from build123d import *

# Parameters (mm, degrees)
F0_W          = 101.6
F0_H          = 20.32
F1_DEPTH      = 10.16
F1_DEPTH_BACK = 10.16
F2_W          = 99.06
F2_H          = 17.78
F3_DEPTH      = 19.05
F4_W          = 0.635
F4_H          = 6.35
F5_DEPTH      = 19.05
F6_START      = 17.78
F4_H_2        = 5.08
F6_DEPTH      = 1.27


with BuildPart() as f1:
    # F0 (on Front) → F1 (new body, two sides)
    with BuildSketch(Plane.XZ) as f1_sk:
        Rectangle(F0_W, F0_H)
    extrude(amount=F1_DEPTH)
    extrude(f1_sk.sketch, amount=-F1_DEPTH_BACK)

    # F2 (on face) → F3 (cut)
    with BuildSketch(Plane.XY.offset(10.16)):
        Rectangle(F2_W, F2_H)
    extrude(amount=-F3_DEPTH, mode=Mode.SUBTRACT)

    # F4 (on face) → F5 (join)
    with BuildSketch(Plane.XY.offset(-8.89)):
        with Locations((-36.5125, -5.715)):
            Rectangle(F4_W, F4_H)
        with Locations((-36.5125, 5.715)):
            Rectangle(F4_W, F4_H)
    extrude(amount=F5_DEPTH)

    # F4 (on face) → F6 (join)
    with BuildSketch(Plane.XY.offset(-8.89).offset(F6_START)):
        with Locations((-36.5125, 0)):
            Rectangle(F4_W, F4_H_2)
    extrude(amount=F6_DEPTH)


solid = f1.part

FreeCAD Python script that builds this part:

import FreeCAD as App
import Part
import Sketcher

V = App.Vector
Q = App.Units.Quantity

doc = App.newDocument("Part")
body = doc.addObject("PartDesign::Body", "Body")

sketch1 = body.newObject("Sketcher::SketchObject", "Sketch")
sketch1.AttachmentSupport = (doc.getObject("XZ_Plane"), [""])
sketch1.MapMode = "FlatFace"
sketch1.addGeometry([
    Part.LineSegment(V(-51, 10, 0), V(-51, -10, 0)),
    Part.LineSegment(V(-51, -10, 0), V(51, -10, 0)),
    Part.LineSegment(V(51, -10, 0), V(51, 10, 0)),
    Part.LineSegment(V(51, 10, 0), V(-51, 10, 0)),
], False)
sketch1.addConstraint([
    Sketcher.Constraint("Coincident", 0, 2, 1, 1),
    Sketcher.Constraint("Coincident", 1, 2, 2, 1),
    Sketcher.Constraint("Coincident", 2, 2, 3, 1),
    Sketcher.Constraint("Coincident", 3, 2, 0, 1),
    Sketcher.Constraint("Vertical", 0),
    Sketcher.Constraint("Horizontal", 1),
    Sketcher.Constraint("Vertical", 2),
    Sketcher.Constraint("Horizontal", 3),
    Sketcher.Constraint("Symmetric", 0, 2, 2, 2, -1, 1),
    Sketcher.Constraint("DistanceX", 1, 1, 1, 2, Q("4 in")),
    Sketcher.Constraint("DistanceY", 0, 2, 0, 1, Q("0.8 in")),
])
pad1 = body.newObject("PartDesign::Pad", "Pad")
pad1.Profile = sketch1
pad1.Type = "TwoLengths"
pad1.Length = Q("0.4 in")
pad1.Length2 = Q("0.4 in")

sketch2 = body.newObject("Sketcher::SketchObject", "Sketch001")
sketch2.AttachmentSupport = (doc.getObject("XY_Plane"), [""])
sketch2.MapMode = "FlatFace"
sketch2.AttachmentOffset = App.Placement(V(0, 0, 0.4 * 25.4), App.Rotation())
sketch2.addGeometry([
    Part.LineSegment(V(-50, 9, 0), V(-50, -9, 0)),
    Part.LineSegment(V(-50, -9, 0), V(50, -9, 0)),
    Part.LineSegment(V(50, -9, 0), V(50, 9, 0)),
    Part.LineSegment(V(50, 9, 0), V(-50, 9, 0)),
], False)
sketch2.addConstraint([
    Sketcher.Constraint("Coincident", 0, 2, 1, 1),
    Sketcher.Constraint("Coincident", 1, 2, 2, 1),
    Sketcher.Constraint("Coincident", 2, 2, 3, 1),
    Sketcher.Constraint("Coincident", 3, 2, 0, 1),
    Sketcher.Constraint("Vertical", 0),
    Sketcher.Constraint("Horizontal", 1),
    Sketcher.Constraint("Vertical", 2),
    Sketcher.Constraint("Horizontal", 3),
    Sketcher.Constraint("Symmetric", 0, 2, 2, 2, -1, 1),
    Sketcher.Constraint("DistanceX", 1, 1, 1, 2, Q("3.9 in")),
    Sketcher.Constraint("DistanceY", 0, 2, 0, 1, Q("0.7 in")),
])
pocket1 = body.newObject("PartDesign::Pocket", "Pocket")
pocket1.Profile = sketch2
pocket1.Length = Q("0.75 in")

sketch3 = body.newObject("Sketcher::SketchObject", "Sketch002")
sketch3.AttachmentSupport = (doc.getObject("XY_Plane"), [""])
sketch3.MapMode = "FlatFace"
sketch3.AttachmentOffset = App.Placement(V(0, 0, -0.35 * 25.4), App.Rotation())
sketch3.addGeometry([
    Part.LineSegment(V(-36.8, -2.5, 0), V(-36.8, -8.9, 0)),
    Part.LineSegment(V(-36.8, -8.9, 0), V(-36.2, -8.9, 0)),
    Part.LineSegment(V(-36.2, -8.9, 0), V(-36.2, -2.5, 0)),
    Part.LineSegment(V(-36.2, -2.5, 0), V(-36.8, -2.5, 0)),
    Part.LineSegment(V(-36.8, 8.9, 0), V(-36.8, 2.5, 0)),
    Part.LineSegment(V(-36.8, 2.5, 0), V(-36.2, 2.5, 0)),
    Part.LineSegment(V(-36.2, 2.5, 0), V(-36.2, 8.9, 0)),
    Part.LineSegment(V(-36.2, 8.9, 0), V(-36.8, 8.9, 0)),
], False)
sketch3.addConstraint([
    Sketcher.Constraint("Coincident", 0, 2, 1, 1),
    Sketcher.Constraint("Coincident", 1, 2, 2, 1),
    Sketcher.Constraint("Coincident", 2, 2, 3, 1),
    Sketcher.Constraint("Coincident", 3, 2, 0, 1),
    Sketcher.Constraint("Coincident", 4, 2, 5, 1),
    Sketcher.Constraint("Coincident", 5, 2, 6, 1),
    Sketcher.Constraint("Coincident", 6, 2, 7, 1),
    Sketcher.Constraint("Coincident", 7, 2, 4, 1),
    Sketcher.Constraint("Vertical", 0),
    Sketcher.Constraint("Horizontal", 1),
    Sketcher.Constraint("Vertical", 2),
    Sketcher.Constraint("Horizontal", 3),
    Sketcher.Constraint("Vertical", 4),
    Sketcher.Constraint("Horizontal", 5),
    Sketcher.Constraint("Vertical", 6),
    Sketcher.Constraint("Horizontal", 7),
    Sketcher.Constraint("Symmetric", 3, 2, 4, 2, -1),
    Sketcher.Constraint("Symmetric", 1, 2, 6, 2, -1),
    Sketcher.Constraint("DistanceY", 0, 2, 0, 1, Q("0.25 in")),
    Sketcher.Constraint("DistanceY", 2, 2, -1, 1, Q("0.1 in")),
    Sketcher.Constraint("DistanceX", 1, 1, 1, 2, Q("0.025 in")),
    Sketcher.Constraint("DistanceX", 0, 2, -1, 1, Q("1.45 in")),
])
pad2 = body.newObject("PartDesign::Pad", "Pad001")
pad2.Profile = sketch3
pad2.Length = Q("0.75 in")

sketch4 = body.newObject("Sketcher::SketchObject", "Sketch003")
sketch4.AttachmentSupport = (doc.getObject("XY_Plane"), [""])
sketch4.MapMode = "FlatFace"
sketch4.AttachmentOffset = App.Placement(V(0, 0, 0.35 * 25.4), App.Rotation())
sketch4.addGeometry([
    Part.LineSegment(V(-36.8, 2.5, 0), V(-36.8, -2.5, 0)),
    Part.LineSegment(V(-36.8, -2.5, 0), V(-36.2, -2.5, 0)),
    Part.LineSegment(V(-36.2, -2.5, 0), V(-36.2, 2.5, 0)),
    Part.LineSegment(V(-36.2, 2.5, 0), V(-36.8, 2.5, 0)),
], False)
sketch4.addConstraint([
    Sketcher.Constraint("Coincident", 0, 2, 1, 1),
    Sketcher.Constraint("Coincident", 1, 2, 2, 1),
    Sketcher.Constraint("Coincident", 2, 2, 3, 1),
    Sketcher.Constraint("Coincident", 3, 2, 0, 1),
    Sketcher.Constraint("Vertical", 0),
    Sketcher.Constraint("Horizontal", 1),
    Sketcher.Constraint("Vertical", 2),
    Sketcher.Constraint("Horizontal", 3),
    Sketcher.Constraint("DistanceY", 0, 2, 0, 1, Q("0.2 in")),
    Sketcher.Constraint("DistanceY", 0, 2, -1, 1, Q("0.1 in")),
    Sketcher.Constraint("DistanceX", 1, 1, 1, 2, Q("0.025 in")),
    Sketcher.Constraint("DistanceX", 0, 2, -1, 1, Q("1.45 in")),
])
pad3 = body.newObject("PartDesign::Pad", "Pad002")
pad3.Profile = sketch4
pad3.Length = Q("0.05 in")

doc.recompute()
